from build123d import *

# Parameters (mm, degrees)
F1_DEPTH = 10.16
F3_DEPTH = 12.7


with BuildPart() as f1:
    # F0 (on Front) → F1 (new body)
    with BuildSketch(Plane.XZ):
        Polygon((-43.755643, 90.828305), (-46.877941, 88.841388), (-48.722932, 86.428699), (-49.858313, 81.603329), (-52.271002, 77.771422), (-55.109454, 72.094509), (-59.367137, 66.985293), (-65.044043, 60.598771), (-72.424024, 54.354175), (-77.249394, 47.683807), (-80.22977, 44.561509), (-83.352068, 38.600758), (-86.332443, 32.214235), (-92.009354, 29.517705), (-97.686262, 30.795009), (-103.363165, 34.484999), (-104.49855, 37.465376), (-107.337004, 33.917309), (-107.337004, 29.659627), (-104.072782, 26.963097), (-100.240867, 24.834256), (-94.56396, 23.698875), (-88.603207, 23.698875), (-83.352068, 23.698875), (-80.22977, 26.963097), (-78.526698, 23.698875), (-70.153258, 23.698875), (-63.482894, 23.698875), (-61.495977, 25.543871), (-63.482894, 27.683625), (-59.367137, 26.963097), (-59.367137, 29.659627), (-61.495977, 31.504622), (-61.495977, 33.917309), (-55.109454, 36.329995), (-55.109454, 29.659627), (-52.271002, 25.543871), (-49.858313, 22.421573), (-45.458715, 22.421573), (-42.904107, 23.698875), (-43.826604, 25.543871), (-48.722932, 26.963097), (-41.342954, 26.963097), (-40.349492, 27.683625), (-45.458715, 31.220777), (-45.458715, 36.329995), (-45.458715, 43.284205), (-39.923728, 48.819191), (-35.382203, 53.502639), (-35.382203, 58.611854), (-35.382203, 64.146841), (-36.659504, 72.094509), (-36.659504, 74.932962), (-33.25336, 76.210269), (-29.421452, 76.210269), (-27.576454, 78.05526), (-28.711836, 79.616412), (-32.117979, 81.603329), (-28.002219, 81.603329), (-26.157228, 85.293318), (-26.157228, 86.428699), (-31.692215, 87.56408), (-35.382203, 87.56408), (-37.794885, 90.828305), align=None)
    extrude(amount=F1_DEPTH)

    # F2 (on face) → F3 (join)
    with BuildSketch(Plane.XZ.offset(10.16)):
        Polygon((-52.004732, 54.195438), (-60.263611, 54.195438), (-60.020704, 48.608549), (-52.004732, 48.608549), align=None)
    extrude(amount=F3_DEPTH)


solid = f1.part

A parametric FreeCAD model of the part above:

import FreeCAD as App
import Part
import Sketcher

V = App.Vector
Q = App.Units.Quantity

doc = App.newDocument("Part")
body = doc.addObject("PartDesign::Body", "Body")

# Sketch on XZ plane
sketch1 = body.newObject("Sketcher::SketchObject", "Sketch")
sketch1.AttachmentSupport = (doc.getObject("XZ_Plane"), [""])
sketch1.MapMode = "FlatFace"
sketch1.addGeometry([
    Part.LineSegment(V(-43.8, 90.8, 0), V(-46.9, 88.8, 0)),  # 0
    Part.LineSegment(V(-46.9, 88.8, 0), V(-48.7, 86.4, 0)),  # 1
    Part.LineSegment(V(-48.7, 86.4, 0), V(-49.9, 81.6, 0)),  # 2
    Part.LineSegment(V(-49.9, 81.6, 0), V(-52.3, 77.8, 0)),  # 3
    Part.LineSegment(V(-52.3, 77.8, 0), V(-55.1, 72.1, 0)),  # 4
    Part.LineSegment(V(-55.1, 72.1, 0), V(-59.4, 67, 0)),  # 5
    Part.LineSegment(V(-59.4, 67, 0), V(-65, 60.6, 0)),  # 6
    Part.LineSegment(V(-65, 60.6, 0), V(-72.4, 54.4, 0)),  # 7
    Part.LineSegment(V(-72.4, 54.4, 0), V(-77.2, 47.7, 0)),  # 8
    Part.LineSegment(V(-77.2, 47.7, 0), V(-80.2, 44.6, 0)),  # 9
    Part.LineSegment(V(-80.2, 44.6, 0), V(-83.4, 38.6, 0)),  # 10
    Part.LineSegment(V(-83.4, 38.6, 0), V(-86.3, 32.2, 0)),  # 11
    Part.LineSegment(V(-86.3, 32.2, 0), V(-92, 29.5, 0)),  # 12
    Part.LineSegment(V(-92, 29.5, 0), V(-97.7, 30.8, 0)),  # 13
    Part.LineSegment(V(-97.7, 30.8, 0), V(-103.4, 34.5, 0)),  # 14
    Part.LineSegment(V(-103.4, 34.5, 0), V(-104.5, 37.5, 0)),  # 15
    Part.LineSegment(V(-104.5, 37.5, 0), V(-107.3, 33.9, 0)),  # 16
    Part.LineSegment(V(-107.3, 33.9, 0), V(-107.3, 29.7, 0)),  # 17
    Part.LineSegment(V(-107.3, 29.7, 0), V(-104.1, 27, 0)),  # 18
    Part.LineSegment(V(-104.1, 27, 0), V(-100.2, 24.8, 0)),  # 19
    Part.LineSegment(V(-100.2, 24.8, 0), V(-94.6, 23.7, 0)),  # 20
    Part.LineSegment(V(-94.6, 23.7, 0), V(-83.4, 23.7, 0)),  # 21
    Part.LineSegment(V(-83.4, 23.7, 0), V(-80.2, 27, 0)),  # 22
    Part.LineSegment(V(-80.2, 27, 0), V(-78.5, 23.7, 0)),  # 23
    Part.LineSegment(V(-78.5, 23.7, 0), V(-63.5, 23.7, 0)),  # 24
    Part.LineSegment(V(-63.5, 23.7, 0), V(-61.5, 25.5, 0)),  # 25
    Part.LineSegment(V(-61.5, 25.5, 0), V(-63.5, 27.7, 0)),  # 26
    Part.LineSegment(V(-63.5, 27.7, 0), V(-59.4, 27, 0)),  # 27
    Part.LineSegment(V(-59.4, 27, 0), V(-59.4, 29.7, 0)),  # 28
    Part.LineSegment(V(-59.4, 29.7, 0), V(-61.5, 31.5, 0)),  # 29
    Part.LineSegment(V(-61.5, 31.5, 0), V(-61.5, 33.9, 0)),  # 30
    Part.LineSegment(V(-61.5, 33.9, 0), V(-55.1, 36.3, 0)),  # 31
    Part.LineSegment(V(-55.1, 36.3, 0), V(-55.1, 29.7, 0)),  # 32
    Part.LineSegment(V(-55.1, 29.7, 0), V(-52.3, 25.5, 0)),  # 33
    Part.LineSegment(V(-52.3, 25.5, 0), V(-49.9, 22.4, 0)),  # 34
    Part.LineSegment(V(-49.9, 22.4, 0), V(-45.5, 22.4, 0)),  # 35
    Part.LineSegment(V(-45.5, 22.4, 0), V(-42.9, 23.7, 0)),  # 36
    Part.LineSegment(V(-42.9, 23.7, 0), V(-43.8, 25.5, 0)),  # 37
    Part.LineSegment(V(-43.8, 25.5, 0), V(-48.7, 27, 0)),  # 38
    Part.LineSegment(V(-48.7, 27, 0), V(-41.3, 27, 0)),  # 39
    Part.LineSegment(V(-41.3, 27, 0), V(-40.3, 27.7, 0)),  # 40
    Part.LineSegment(V(-40.3, 27.7, 0), V(-45.5, 31.2, 0)),  # 41
    Part.LineSegment(V(-45.5, 31.2, 0), V(-45.5, 43.3, 0)),  # 42
    Part.LineSegment(V(-45.5, 43.3, 0), V(-39.9, 48.8, 0)),  # 43
    Part.LineSegment(V(-39.9, 48.8, 0), V(-35.4, 53.5, 0)),  # 44
    Part.LineSegment(V(-35.4, 53.5, 0), V(-35.4, 64.1, 0)),  # 45
    Part.LineSegment(V(-35.4, 64.1, 0), V(-36.7, 72.1, 0)),  # 46
    Part.LineSegment(V(-36.7, 72.1, 0), V(-36.7, 74.9, 0)),  # 47
    Part.LineSegment(V(-36.7, 74.9, 0), V(-33.3, 76.2, 0)),  # 48
    Part.LineSegment(V(-33.3, 76.2, 0), V(-29.4, 76.2, 0)),  # 49
    Part.LineSegment(V(-29.4, 76.2, 0), V(-27.6, 78.1, 0)),  # 50
    Part.LineSegment(V(-27.6, 78.1, 0), V(-28.7, 79.6, 0)),  # 51
    Part.LineSegment(V(-28.7, 79.6, 0), V(-32.1, 81.6, 0)),  # 52
    Part.LineSegment(V(-32.1, 81.6, 0), V(-28, 81.6, 0)),  # 53
    Part.LineSegment(V(-28, 81.6, 0), V(-26.2, 85.3, 0)),  # 54
    Part.LineSegment(V(-26.2, 85.3, 0), V(-26.2, 86.4, 0)),  # 55
    Part.LineSegment(V(-26.2, 86.4, 0), V(-31.7, 87.6, 0)),  # 56
    Part.LineSegment(V(-31.7, 87.6, 0), V(-35.4, 87.6, 0)),  # 57
    Part.LineSegment(V(-35.4, 87.6, 0), V(-37.8, 90.8, 0)),  # 58
    Part.LineSegment(V(-37.8, 90.8, 0), V(-43.8, 90.8, 0)),  # 59
], False)
sketch1.addConstraint([
    Sketcher.Constraint("Coincident", 0, 2, 1, 1),
    Sketcher.Constraint("Coincident", 1, 2, 2, 1),
    Sketcher.Constraint("Coincident", 2, 2, 3, 1),
    Sketcher.Constraint("Coincident", 3, 2, 4, 1),
    Sketcher.Constraint("Coincident", 4, 2, 5, 1),
    Sketcher.Constraint("Coincident", 5, 2, 6, 1),
    Sketcher.Constraint("Coincident", 6, 2, 7, 1),
    Sketcher.Constraint("Coincident", 7, 2, 8, 1),
    Sketcher.Constraint("Coincident", 8, 2, 9, 1),
    Sketcher.Constraint("Coincident", 9, 2, 10, 1),
    Sketcher.Constraint("Coincident", 10, 2, 11, 1),
    Sketcher.Constraint("Coincident", 11, 2, 12, 1),
    Sketcher.Constraint("Coincident", 12, 2, 13, 1),
    Sketcher.Constraint("Coincident", 13, 2, 14, 1),
    Sketcher.Constraint("Coincident", 14, 2, 15, 1),
    Sketcher.Constraint("Coincident", 15, 2, 16, 1),
    Sketcher.Constraint("Coincident", 16, 2, 17, 1),
    Sketcher.Constraint("Coincident", 17, 2, 18, 1),
    Sketcher.Constraint("Coincident", 18, 2, 19, 1),
    Sketcher.Constraint("Coincident", 19, 2, 20, 1),
    Sketcher.Constraint("Coincident", 20, 2, 21, 1),
    Sketcher.Constraint("Coincident", 21, 2, 22, 1),
    Sketcher.Constraint("Coincident", 22, 2, 23, 1),
    Sketcher.Constraint("Coincident", 23, 2, 24, 1),
    Sketcher.Constraint("Coincident", 24, 2, 25, 1),
    Sketcher.Constraint("Coincident", 25, 2, 26, 1),
    Sketcher.Constraint("Coincident", 26, 2, 27, 1),
    Sketcher.Constraint("Coincident", 27, 2, 28, 1),
    Sketcher.Constraint("Coincident", 28, 2, 29, 1),
    Sketcher.Constraint("Coincident", 29, 2, 30, 1),
    Sketcher.Constraint("Coincident", 30, 2, 31, 1),
    Sketcher.Constraint("Coincident", 31, 2, 32, 1),
    Sketcher.Constraint("Coincident", 32, 2, 33, 1),
    Sketcher.Constraint("Coincident", 33, 2, 34, 1),
    Sketcher.Constraint("Coincident", 34, 2, 35, 1),
    Sketcher.Constraint("Coincident", 35, 2, 36, 1),
    Sketcher.Constraint("Coincident", 36, 2, 37, 1),
    Sketcher.Constraint("Coincident", 37, 2, 38, 1),
    Sketcher.Constraint("Coincident", 38, 2, 39, 1),
    Sketcher.Constraint("Coincident", 39, 2, 40, 1),
    Sketcher.Constraint("Coincident", 40, 2, 41, 1),
    Sketcher.Constraint("Coincident", 41, 2, 42, 1),
    Sketcher.Constraint("Coincident", 42, 2, 43, 1),
    Sketcher.Constraint("Coincident", 43, 2, 44, 1),
    Sketcher.Constraint("Coincident", 44, 2, 45, 1),
    Sketcher.Constraint("Coincident", 45, 2, 46, 1),
    Sketcher.Constraint("Coincident", 46, 2, 47, 1),
    Sketcher.Constraint("Coincident", 47, 2, 48, 1),
    Sketcher.Constraint("Coincident", 48, 2, 49, 1),
    Sketcher.Constraint("Coincident", 49, 2, 50, 1),
    Sketcher.Constraint("Coincident", 50, 2, 51, 1),
    Sketcher.Constraint("Coincident", 51, 2, 52, 1),
    Sketcher.Constraint("Coincident", 52, 2, 53, 1),
    Sketcher.Constraint("Coincident", 53, 2, 54, 1),
    Sketcher.Constraint("Coincident", 54, 2, 55, 1),
    Sketcher.Constraint("Coincident", 55, 2, 56, 1),
    Sketcher.Constraint("Coincident", 56, 2, 57, 1),
    Sketcher.Constraint("Coincident", 57, 2, 58, 1),
    Sketcher.Constraint("Coincident", 58, 2, 59, 1),
    Sketcher.Constraint("Coincident", 59, 2, 0, 1),
    Sketcher.Constraint("Vertical", 17),
    Sketcher.Constraint("Horizontal", 21),
    Sketcher.Constraint("Horizontal", 24),
    Sketcher.Constraint("Vertical", 28),
    Sketcher.Constraint("Vertical", 30),
    Sketcher.Constraint("Vertical", 32),
    Sketcher.Constraint("Horizontal", 35),
    Sketcher.Constraint("Horizontal", 39),
    Sketcher.Constraint("Vertical", 42),
    Sketcher.Constraint("Vertical", 45),
    Sketcher.Constraint("Vertical", 47),
    Sketcher.Constraint("Horizontal", 49),
    Sketcher.Constraint("Horizontal", 53),
    Sketcher.Constraint("Vertical", 55),
    Sketcher.Constraint("Horizontal", 57),
    Sketcher.Constraint("Horizontal", 59),
    Sketcher.Constraint("Perpendicular", 25, 26),
    Sketcher.Constraint("Perpendicular", 36, 37),
    Sketcher.Constraint("Parallel", 43, 50),
    Sketcher.Constraint("Parallel", 4, 54),
    Sketcher.Constraint("Horizontal", 18, 2, 22, 2),
    Sketcher.Constraint("Horizontal", 21, 2, 23, 2),
    Sketcher.Constraint("Horizontal", 22, 2, 27, 2),
    Sketcher.Constraint("Horizontal", 17, 2, 28, 2),
    Sketcher.Constraint("Horizontal", 16, 2, 30, 2),
    Sketcher.Constraint("Horizontal", 28, 2, 32, 2),
    Sketcher.Constraint("Horizontal", 25, 2, 33, 2),
    Sketcher.Constraint("Horizontal", 24, 2, 36, 2),
    Sketcher.Constraint("Horizontal", 33, 2, 37, 2),
    Sketcher.Constraint("Horizontal", 27, 2, 38, 2),
    Sketcher.Constraint("Horizontal", 26, 2, 40, 2),
    Sketcher.Constraint("Horizontal", 4, 2, 46, 2),
    Sketcher.Constraint("Horizontal", 2, 2, 52, 2),
    Sketcher.Constraint("Horizontal", 1, 2, 55, 2),
    Sketcher.Constraint("Vertical", 10, 2, 21, 2),
    Sketcher.Constraint("Vertical", 9, 2, 22, 2),
    Sketcher.Constraint("Vertical", 24, 2, 26, 2),
    Sketcher.Constraint("Vertical", 5, 2, 27, 2),
    Sketcher.Constraint("Vertical", 25, 2, 29, 2),
    Sketcher.Constraint("Vertical", 4, 2, 31, 2),
    Sketcher.Constraint("Vertical", 3, 2, 33, 2),
    Sketcher.Constraint("Vertical", 2, 2, 34, 2),
    Sketcher.Constraint("Vertical", 1, 2, 38, 2),
    Sketcher.Constraint("Vertical", 35, 2, 41, 2),
    Sketcher.Constraint("Vertical", 45, 2, 57, 2),
    Sketcher.Constraint("Angle", 43, Q("44.999995 deg")),
    Sketcher.Constraint("DistanceY", 55, 1, 55, 2, Q("0.0447 in")),
    Sketcher.Constraint("DistanceX", 44, 2, -1, 1, Q("1.3930001 in")),
    Sketcher.Constraint("DistanceX", 35, 1, 35, 2, Q("4.399598 mm")),
    Sketcher.Constraint("DistanceY", 45, 1, 45, 2, Q("10.644202 mm")),
    Sketcher.Constraint("DistanceX", 2, 2, 1, 2, Q("0.0447 in")),
    Sketcher.Constraint("DistanceX", 14, 2, 13, 2, Q("0.2235001 in")),
    Sketcher.Constraint("DistanceY", 11, 2, 14, 2, Q("0.0894002 in")),
    Sketcher.Constraint("DistanceX", 15, 2, 14, 2, Q("0.0447002 in")),
    Sketcher.Constraint("DistanceY", 15, 2, 10, 2, Q("0.0447001 in")),
    Sketcher.Constraint("DistanceY", 17, 2, 13, 2, Q("0.0447001 in")),
    Sketcher.Constraint("DistanceY", 20, 2, 19, 2, Q("0.0447 in")),
    Sketcher.Constraint("DistanceY", 27, 2, 29, 2, Q("0.1788002 in")),
    Sketcher.Constraint("DistanceY", 34, 2, 27, 2, Q("0.1788002 in")),
    Sketcher.Constraint("DistanceX", 43, 2, 44, 2, Q("0.1788002 in")),
    Sketcher.Constraint("DistanceX", 47, 2, 48, 2, Q("0.1341002 in")),
    Sketcher.Constraint("DistanceX", 51, 2, 50, 2, Q("0.0447001 in")),
    Sketcher.Constraint("DistanceY", 49, 2, 51, 2, Q("0.1341001 in")),
    Sketcher.Constraint("DistanceX", 48, 2, 51, 2, Q("0.1788002 in")),
    Sketcher.Constraint("DistanceX", 52, 2, 51, 2, Q("0.1341001 in")),
    Sketcher.Constraint("DistanceY", 55, 2, 56, 2, Q("0.0447 in")),
    Sketcher.Constraint("Distance", 3, Q("4.528198 mm")),
    Sketcher.Constraint("DistanceX", 21, 1, 21, 2, Q("11.211892 mm")),
    Sketcher.Constraint("DistanceX", 39, 1, 39, 2, Q("7.379978 mm")),
    Sketcher.Constraint("DistanceX", 49, 1, 49, 2, Q("3.831908 mm")),
    Sketcher.Constraint("DistanceX", 53, 1, 53, 2, Q("4.11576 mm")),
    Sketcher.Constraint("DistanceY", 28, 1, 28, 2, Q("2.69653 mm")),
    Sketcher.Constraint("DistanceY", 42, 1, 42, 2, Q("12.063428 mm")),
    Sketcher.Constraint("DistanceY", -1, 1, 1, 2, Q("86.428699 mm")),
    Sketcher.Constraint("DistanceY", -1, 1, 14, 2, Q("34.484999 mm")),
    Sketcher.Constraint("DistanceY", 9, 2, 8, 2, Q("3.122298 mm")),
    Sketcher.Constraint("DistanceY", 9, 2, 4, 2, Q("27.533 mm")),
    Sketcher.Constraint("DistanceX", 10, 2, 9, 2, Q("3.122298 mm")),
    Sketcher.Constraint("DistanceX", 11, 2, 6, 2, Q("21.2884 mm")),
    Sketcher.Constraint("DistanceY", 13, 2, 9, 2, Q("13.7665 mm")),
    Sketcher.Constraint("DistanceY", 13, 2, 16, 2, Q("3.1223 mm")),
    Sketcher.Constraint("DistanceX", 14, 2, 19, 2, Q("3.122298 mm")),
    Sketcher.Constraint("DistanceY", 34, 2, 33, 2, Q("3.122298 mm")),
    Sketcher.Constraint("DistanceY", 36, 2, 41, 2, Q("7.521902 mm")),
    Sketcher.Constraint("DistanceX", 3, 2, 45, 2, Q("16.888799 mm")),
    Sketcher.Constraint("DistanceX", 46, 2, 45, 2, Q("1.277301 mm")),
    Sketcher.Constraint("DistanceY", 47, 2, 50, 2, Q("3.122298 mm")),
    Sketcher.Constraint("DistanceX", 0, 2, 59, 2, Q("3.122298 mm")),
    Sketcher.Constraint("Distance", 0, Q("3.70089 mm")),
    Sketcher.Constraint("Distance", 1, Q("3.037278 mm")),
    Sketcher.Constraint("Distance", 4, Q("6.34698 mm")),
    Sketcher.Constraint("Distance", 5, Q("6.650711 mm")),
    Sketcher.Constraint("Distance", 8, Q("8.23274 mm")),
    Sketcher.Constraint("Distance", 9, Q("4.316409 mm")),
    Sketcher.Constraint("Distance", 10, Q("6.728989 mm")),
    Sketcher.Constraint("Distance", 12, Q("6.284791 mm")),
    Sketcher.Constraint("Distance", 13, Q("5.818831 mm")),
    Sketcher.Constraint("Distance", 18, Q("4.23396 mm")),
    Sketcher.Constraint("Distance", 20, Q("5.789332 mm")),
    Sketcher.Constraint("Distance", 25, Q("2.711429 mm")),
    Sketcher.Constraint("Distance", 27, Q("4.178351 mm")),
    Sketcher.Constraint("Distance", 31, Q("6.827059 mm")),
    Sketcher.Constraint("Distance", 34, Q("3.94586 mm")),
    Sketcher.Constraint("Distance", 54, Q("4.125532 mm")),
    Sketcher.Constraint("Distance", 58, Q("4.059088 mm")),
    Sketcher.Constraint("DistanceX", 24, 1, 24, 2, Q("15.043804 mm")),
    Sketcher.Constraint("DistanceX", 57, 2, 57, 1, Q("3.689988 mm")),
    Sketcher.Constraint("DistanceX", 59, 2, 59, 1, Q("5.960758 mm")),
    Sketcher.Constraint("DistanceY", 32, 2, 32, 1, Q("6.670368 mm")),
    Sketcher.Constraint("DistanceY", 47, 1, 47, 2, Q("2.838453 mm")),
    Sketcher.Constraint("DistanceY", -1, 1, 2, 2, Q("81.603329 mm")),
    Sketcher.Constraint("DistanceY", -1, 1, 6, 2, Q("60.598771 mm")),
    Sketcher.Constraint("DistanceX", 9, 2, -1, 1, Q("80.22977 mm")),
    Sketcher.Constraint("DistanceX", 40, 2, -1, 1, Q("40.349492 mm")),
    Sketcher.Constraint("DistanceY", -1, 1, 43, 2, Q("48.819191 mm")),
    Sketcher.Constraint("DistanceY", -1, 1, 44, 2, Q("53.502639 mm")),
    Sketcher.Constraint("DistanceX", 6, 2, 4, 2, Q("9.934589 mm")),
    Sketcher.Constraint("DistanceX", 7, 2, 6, 2, Q("7.379981 mm")),
    Sketcher.Constraint("DistanceX", 16, 2, 14, 2, Q("3.973839 mm")),
    Sketcher.Constraint("DistanceX", 27, 2, 36, 2, Q("16.46303 mm")),
])
pad1 = body.newObject("PartDesign::Pad", "Pad")
pad1.Profile = sketch1
pad1.Length = Q("0.4 in")

# Sketch on XZ plane
sketch2 = body.newObject("Sketcher::SketchObject", "Sketch001")
sketch2.AttachmentSupport = (doc.getObject("XZ_Plane"), [""])
sketch2.MapMode = "FlatFace"
sketch2.AttachmentOffset = App.Placement(V(0, 0, 0.4 * 25.4), App.Rotation())
sketch2.addGeometry([
    Part.LineSegment(V(-52, 54, 0), V(-60, 54, 0)),
    Part.LineSegment(V(-60, 54, 0), V(-60, 49, 0)),
    Part.LineSegment(V(-60, 49, 0), V(-52, 49, 0)),
    Part.LineSegment(V(-52, 49, 0), V(-52, 54, 0)),
], False)
sketch2.addConstraint([
    Sketcher.Constraint("Coincident", 0, 2, 1, 1),
    Sketcher.Constraint("Coincident", 1, 2, 2, 1),
    Sketcher.Constraint("Coincident", 2, 2, 3, 1),
    Sketcher.Constraint("Coincident", 3, 2, 0, 1),
    Sketcher.Constraint("Horizontal", 0),
    Sketcher.Constraint("Horizontal", 2),
    Sketcher.Constraint("Vertical", 3),
    Sketcher.Constraint("DistanceX", 0, 2, 0, 1, Q("8.258879 mm")),
    Sketcher.Constraint("DistanceY", 3, 1, 3, 2, Q("5.586889 mm")),
    Sketcher.Constraint("DistanceX", 2, 1, 2, 2, Q("8.015972 mm")),
    Sketcher.Constraint("DistanceX", 0, 2, -1, 1, Q("60.263611 mm")),
    Sketcher.Constraint("DistanceY", -1, 1, 0, 2, Q("54.195438 mm")),
])
pad2 = body.newObject("PartDesign::Pad", "Pad001")
pad2.Profile = sketch2
pad2.Length = Q("0.5 in")

doc.recompute()
